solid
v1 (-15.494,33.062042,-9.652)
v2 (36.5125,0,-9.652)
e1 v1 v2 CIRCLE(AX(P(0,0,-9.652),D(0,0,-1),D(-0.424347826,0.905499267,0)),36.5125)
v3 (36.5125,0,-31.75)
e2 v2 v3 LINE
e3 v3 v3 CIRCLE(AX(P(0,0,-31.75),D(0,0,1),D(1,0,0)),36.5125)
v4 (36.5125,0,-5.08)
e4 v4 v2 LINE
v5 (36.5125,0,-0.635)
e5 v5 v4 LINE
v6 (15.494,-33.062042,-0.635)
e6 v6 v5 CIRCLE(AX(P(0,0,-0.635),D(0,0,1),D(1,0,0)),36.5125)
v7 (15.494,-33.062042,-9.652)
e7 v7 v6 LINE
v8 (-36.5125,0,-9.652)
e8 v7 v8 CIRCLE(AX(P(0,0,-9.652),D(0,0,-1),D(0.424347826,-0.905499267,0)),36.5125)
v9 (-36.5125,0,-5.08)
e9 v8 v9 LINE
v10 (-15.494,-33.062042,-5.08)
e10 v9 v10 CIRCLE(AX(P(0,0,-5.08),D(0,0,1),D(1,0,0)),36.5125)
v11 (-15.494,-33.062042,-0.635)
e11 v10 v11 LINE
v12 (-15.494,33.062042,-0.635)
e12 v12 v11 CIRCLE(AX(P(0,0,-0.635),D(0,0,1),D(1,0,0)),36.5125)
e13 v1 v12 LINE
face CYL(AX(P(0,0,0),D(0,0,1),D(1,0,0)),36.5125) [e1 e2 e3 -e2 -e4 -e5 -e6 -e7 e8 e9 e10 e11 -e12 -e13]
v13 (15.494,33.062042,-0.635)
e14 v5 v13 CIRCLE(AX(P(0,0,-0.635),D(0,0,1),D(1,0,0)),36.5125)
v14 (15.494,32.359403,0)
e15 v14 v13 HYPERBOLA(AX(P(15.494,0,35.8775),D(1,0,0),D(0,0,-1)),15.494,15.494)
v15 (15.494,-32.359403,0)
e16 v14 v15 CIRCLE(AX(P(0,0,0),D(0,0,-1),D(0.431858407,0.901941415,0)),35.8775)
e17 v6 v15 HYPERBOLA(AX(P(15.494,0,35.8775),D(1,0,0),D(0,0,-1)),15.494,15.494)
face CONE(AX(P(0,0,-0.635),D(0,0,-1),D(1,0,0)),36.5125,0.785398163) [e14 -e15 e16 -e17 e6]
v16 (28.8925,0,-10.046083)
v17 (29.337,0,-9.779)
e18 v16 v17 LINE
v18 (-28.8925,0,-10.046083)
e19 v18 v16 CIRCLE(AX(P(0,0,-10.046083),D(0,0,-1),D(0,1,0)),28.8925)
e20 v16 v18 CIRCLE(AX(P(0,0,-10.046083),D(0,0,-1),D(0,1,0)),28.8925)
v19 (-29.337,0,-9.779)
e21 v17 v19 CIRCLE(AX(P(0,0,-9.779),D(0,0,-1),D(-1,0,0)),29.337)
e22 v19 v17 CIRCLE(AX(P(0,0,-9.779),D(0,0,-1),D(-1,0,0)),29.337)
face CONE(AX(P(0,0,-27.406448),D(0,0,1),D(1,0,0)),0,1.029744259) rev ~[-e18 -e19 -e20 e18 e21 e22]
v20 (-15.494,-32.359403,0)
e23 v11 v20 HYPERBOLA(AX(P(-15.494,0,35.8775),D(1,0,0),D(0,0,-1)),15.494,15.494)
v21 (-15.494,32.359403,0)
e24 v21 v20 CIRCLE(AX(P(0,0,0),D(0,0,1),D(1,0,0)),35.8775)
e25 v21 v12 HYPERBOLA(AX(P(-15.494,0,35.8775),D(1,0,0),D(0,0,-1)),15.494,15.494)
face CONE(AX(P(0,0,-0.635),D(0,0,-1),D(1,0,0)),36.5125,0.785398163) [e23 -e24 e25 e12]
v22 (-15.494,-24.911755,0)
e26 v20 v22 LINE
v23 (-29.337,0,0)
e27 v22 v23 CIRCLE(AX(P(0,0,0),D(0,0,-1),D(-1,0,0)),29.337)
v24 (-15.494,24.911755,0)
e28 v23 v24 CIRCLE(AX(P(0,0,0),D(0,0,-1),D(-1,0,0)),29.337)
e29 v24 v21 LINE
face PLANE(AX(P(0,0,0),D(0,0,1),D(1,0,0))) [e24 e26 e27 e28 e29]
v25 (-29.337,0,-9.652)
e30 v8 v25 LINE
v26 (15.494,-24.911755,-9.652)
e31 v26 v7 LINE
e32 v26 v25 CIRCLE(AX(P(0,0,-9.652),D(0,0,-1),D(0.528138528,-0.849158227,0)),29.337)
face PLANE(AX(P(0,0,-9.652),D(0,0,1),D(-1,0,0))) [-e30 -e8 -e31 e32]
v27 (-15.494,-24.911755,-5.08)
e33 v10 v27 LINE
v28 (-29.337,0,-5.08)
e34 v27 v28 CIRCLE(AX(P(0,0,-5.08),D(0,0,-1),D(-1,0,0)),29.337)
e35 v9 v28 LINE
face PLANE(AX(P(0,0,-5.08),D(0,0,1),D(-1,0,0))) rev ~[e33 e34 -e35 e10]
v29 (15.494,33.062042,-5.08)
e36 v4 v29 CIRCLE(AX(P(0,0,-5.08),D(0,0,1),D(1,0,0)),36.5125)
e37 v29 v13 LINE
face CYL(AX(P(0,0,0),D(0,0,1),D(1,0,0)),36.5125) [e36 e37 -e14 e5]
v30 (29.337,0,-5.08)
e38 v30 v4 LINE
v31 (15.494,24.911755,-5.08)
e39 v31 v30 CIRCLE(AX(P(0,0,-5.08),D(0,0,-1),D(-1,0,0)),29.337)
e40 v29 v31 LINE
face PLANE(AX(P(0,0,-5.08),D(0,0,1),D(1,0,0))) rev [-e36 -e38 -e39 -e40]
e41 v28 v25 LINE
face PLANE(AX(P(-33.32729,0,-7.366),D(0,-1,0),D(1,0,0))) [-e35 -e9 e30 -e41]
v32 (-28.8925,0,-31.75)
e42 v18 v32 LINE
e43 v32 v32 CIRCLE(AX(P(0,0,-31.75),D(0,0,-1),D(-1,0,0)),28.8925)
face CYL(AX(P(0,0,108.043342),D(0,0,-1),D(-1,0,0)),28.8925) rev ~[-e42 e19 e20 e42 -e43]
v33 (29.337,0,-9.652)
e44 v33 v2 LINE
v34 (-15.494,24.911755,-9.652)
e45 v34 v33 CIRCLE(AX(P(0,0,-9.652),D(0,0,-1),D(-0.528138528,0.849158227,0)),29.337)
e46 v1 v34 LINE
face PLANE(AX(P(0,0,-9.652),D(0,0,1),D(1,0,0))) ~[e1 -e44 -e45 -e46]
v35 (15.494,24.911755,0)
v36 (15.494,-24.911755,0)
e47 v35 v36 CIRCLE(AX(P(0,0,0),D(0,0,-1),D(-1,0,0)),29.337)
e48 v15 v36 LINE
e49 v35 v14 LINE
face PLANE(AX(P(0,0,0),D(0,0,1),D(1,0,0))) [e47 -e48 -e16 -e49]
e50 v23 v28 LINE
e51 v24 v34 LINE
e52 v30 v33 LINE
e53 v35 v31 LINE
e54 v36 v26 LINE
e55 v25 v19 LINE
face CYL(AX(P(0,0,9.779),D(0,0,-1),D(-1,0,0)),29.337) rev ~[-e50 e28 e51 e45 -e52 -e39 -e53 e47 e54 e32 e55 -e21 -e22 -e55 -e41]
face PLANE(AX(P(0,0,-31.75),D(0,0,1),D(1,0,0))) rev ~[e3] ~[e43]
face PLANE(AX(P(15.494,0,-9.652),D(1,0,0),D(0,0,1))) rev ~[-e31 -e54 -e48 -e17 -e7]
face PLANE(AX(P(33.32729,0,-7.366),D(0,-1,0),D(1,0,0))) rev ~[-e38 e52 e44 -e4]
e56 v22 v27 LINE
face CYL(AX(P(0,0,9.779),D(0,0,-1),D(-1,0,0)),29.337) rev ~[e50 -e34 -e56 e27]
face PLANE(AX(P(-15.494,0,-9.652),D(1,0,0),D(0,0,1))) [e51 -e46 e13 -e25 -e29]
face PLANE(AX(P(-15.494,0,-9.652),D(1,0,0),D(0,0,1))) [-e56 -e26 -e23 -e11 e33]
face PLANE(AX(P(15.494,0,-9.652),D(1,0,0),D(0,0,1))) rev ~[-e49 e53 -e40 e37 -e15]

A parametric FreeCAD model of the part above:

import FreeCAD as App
import Part
import Sketcher
from FreeCAD import Vector
Q = App.Units.Quantity


def edges_at(feature, points):
    """Names of the edges that pass closest to the given points."""
    edges = feature.Shape.Edges
    near = lambda p: min(range(len(edges)), key=lambda i: edges[i].distToShape(Part.Vertex(*p))[0])
    return sorted({f"Edge{near(p) + 1}" for p in points})

doc = App.newDocument("Part")
body = doc.addObject("PartDesign::Body", "Body")

# Sketch on XY plane
sketch1 = body.newObject("Sketcher::SketchObject", "Sketch")
sketch1.AttachmentSupport = (doc.getObject("XY_Plane"), [""])
sketch1.MapMode = "FlatFace"
sketch1.addGeometry(Part.Circle(Vector(0, 0, 0), Vector(0, 0, 1), 37), False)
sketch1.addConstraint([
    Sketcher.Constraint("Coincident", 0, 3, -1, 1),
    Sketcher.Constraint("Diameter", 0, Q("2.875 in")),
])
pad1 = body.newObject("PartDesign::Pad", "Pad")
pad1.Profile = sketch1
pad1.Length = Q("1.25 in")
pad1.Reversed = True

# Sketch on XY plane
sketch2 = body.newObject("Sketcher::SketchObject", "Sketch001")
sketch2.AttachmentSupport = (doc.getObject("XY_Plane"), [""])
sketch2.MapMode = "FlatFace"
sketch2.addGeometry(Part.Circle(Vector(0, 0, 0), Vector(0, 0, 1), 29), False)
sketch2.addConstraint([
    Sketcher.Constraint("Coincident", 0, 3, -1, 1),
    Sketcher.Constraint("Diameter", 0, Q("2.275 in")),
])
doc.recompute()
hole = body.newObject("PartDesign::Hole", "Hole")
hole.Profile = sketch2
hole.ThreadType = "None"
hole.Diameter = Q("2.275 in")
hole.DepthType = "ThroughAll"

# Sketch on XY plane
sketch3 = body.newObject("Sketcher::SketchObject", "Sketch002")
sketch3.AttachmentSupport = (doc.getObject("XY_Plane"), [""])
sketch3.MapMode = "FlatFace"
sketch3.addGeometry(Part.Circle(Vector(0, 0, 0), Vector(0, 0, 1), 29), False)
sketch3.addConstraint([
    Sketcher.Constraint("Coincident", 0, 3, -1, 1),
    Sketcher.Constraint("Diameter", 0, Q("2.31 in")),
])
doc.recompute()
hole2 = body.newObject("PartDesign::Hole", "Hole001")
hole2.Profile = sketch3
hole2.ThreadType = "None"
hole2.Diameter = Q("2.31 in")
hole2.DepthType = "Dimension"
hole2.Depth = Q("0.385 in")
hole2.DrillPoint = "Angled"
hole2.DrillPointAngle = 118
doc.recompute()

chamfer = body.newObject("PartDesign::Chamfer", "Chamfer")
chamfer.Base = (hole2, edges_at(hole2, [(-36.513, 0, 0)]))
chamfer.Size = Q("0.025 in")

# Sketch on XZ plane
sketch4 = body.newObject("Sketcher::SketchObject", "Sketch003")
sketch4.AttachmentSupport = (doc.getObject("XZ_Plane"), [""])
sketch4.MapMode = "FlatFace"
sketch4.addGeometry([
    Part.LineSegment(Vector(-43, -5.1, 0), Vector(-43, -9.7, 0)),  # 0
    Part.LineSegment(Vector(-43, -9.7, 0), Vector(-23.7, -9.7, 0)),  # 1
    Part.LineSegment(Vector(-23.7, -9.7, 0), Vector(-23.7, -5.1, 0)),  # 2
    Part.LineSegment(Vector(-23.7, -5.1, 0), Vector(-43, -5.1, 0)),  # 3
    Part.LineSegment(Vector(23.7, -5.1, 0), Vector(23.7, -9.7, 0)),  # 4
    Part.LineSegment(Vector(23.7, -9.7, 0), Vector(43, -9.7, 0)),  # 5
    Part.LineSegment(Vector(43, -9.7, 0), Vector(43, -5.1, 0)),  # 6
    Part.LineSegment(Vector(43, -5.1, 0), Vector(23.7, -5.1, 0)),  # 7
], False)
sketch4.addConstraint([
    Sketcher.Constraint("Coincident", 0, 2, 1, 1),
    Sketcher.Constraint("Coincident", 1, 2, 2, 1),
    Sketcher.Constraint("Coincident", 2, 2, 3, 1),
    Sketcher.Constraint("Coincident", 3, 2, 0, 1),
    Sketcher.Constraint("Coincident", 4, 2, 5, 1),
    Sketcher.Constraint("Coincident", 5, 2, 6, 1),
    Sketcher.Constraint("Coincident", 6, 2, 7, 1),
    Sketcher.Constraint("Coincident", 7, 2, 4, 1),
    Sketcher.Constraint("Vertical", 0),
    Sketcher.Constraint("Horizontal", 1),
    Sketcher.Constraint("Vertical", 2),
    Sketcher.Constraint("Horizontal", 3),
    Sketcher.Constraint("Vertical", 4),
    Sketcher.Constraint("Horizontal", 5),
    Sketcher.Constraint("Vertical", 6),
    Sketcher.Constraint("Horizontal", 7),
    Sketcher.Constraint("Symmetric", 1, 2, 4, 2, -2),
    Sketcher.Constraint("Symmetric", 3, 2, 6, 2, -2),
    Sketcher.Constraint("DistanceX", 1, 1, 1, 2, Q("0.76 in")),
    Sketcher.Constraint("DistanceY", 0, 2, 0, 1, Q("0.18 in")),
    Sketcher.Constraint("DistanceY", 2, 2, -1, 1, Q("0.2 in")),
    Sketcher.Constraint("DistanceX", 0, 2, -1, 1, Q("42.979289 mm")),
])
groove = body.newObject("PartDesign::Groove", "Groove")
groove.Profile = sketch4
groove.ReferenceAxis = (sketch4, ["V_Axis"])
groove.Angle = 90

# Sketch on XZ plane
sketch5 = body.newObject("Sketcher::SketchObject", "Sketch004")
sketch5.AttachmentSupport = (doc.getObject("XZ_Plane"), [""])
sketch5.MapMode = "FlatFace"
sketch5.addGeometry([
    Part.LineSegment(Vector(-15, 0, 0), Vector(-15, -10, 0)),
    Part.LineSegment(Vector(-15, -10, 0), Vector(15, -10, 0)),
    Part.LineSegment(Vector(15, -10, 0), Vector(15, 0, 0)),
    Part.LineSegment(Vector(15, 0, 0), Vector(-15, 0, 0)),
], False)
sketch5.addConstraint([
    Sketcher.Constraint("Coincident", 0, 2, 1, 1),
    Sketcher.Constraint("Coincident", 1, 2, 2, 1),
    Sketcher.Constraint("Coincident", 2, 2, 3, 1),
    Sketcher.Constraint("Coincident", 3, 2, 0, 1),
    Sketcher.Constraint("Vertical", 0),
    Sketcher.Constraint("Horizontal", 1),
    Sketcher.Constraint("Vertical", 2),
    Sketcher.Constraint("Horizontal", 3),
    Sketcher.Constraint("Symmetric", 2, 2, 3, 2, -1, 1),
    Sketcher.Constraint("DistanceX", 1, 1, 1, 2, Q("1.22 in")),
    Sketcher.Constraint("DistanceY", 0, 2, 0, 1, Q("0.38 in")),
])
pocket1 = body.newObject("PartDesign::Pocket", "Pocket")
pocket1.Profile = sketch5
pocket1.Length = Q("4 in")
pocket1.Midplane = True

doc.recompute()
